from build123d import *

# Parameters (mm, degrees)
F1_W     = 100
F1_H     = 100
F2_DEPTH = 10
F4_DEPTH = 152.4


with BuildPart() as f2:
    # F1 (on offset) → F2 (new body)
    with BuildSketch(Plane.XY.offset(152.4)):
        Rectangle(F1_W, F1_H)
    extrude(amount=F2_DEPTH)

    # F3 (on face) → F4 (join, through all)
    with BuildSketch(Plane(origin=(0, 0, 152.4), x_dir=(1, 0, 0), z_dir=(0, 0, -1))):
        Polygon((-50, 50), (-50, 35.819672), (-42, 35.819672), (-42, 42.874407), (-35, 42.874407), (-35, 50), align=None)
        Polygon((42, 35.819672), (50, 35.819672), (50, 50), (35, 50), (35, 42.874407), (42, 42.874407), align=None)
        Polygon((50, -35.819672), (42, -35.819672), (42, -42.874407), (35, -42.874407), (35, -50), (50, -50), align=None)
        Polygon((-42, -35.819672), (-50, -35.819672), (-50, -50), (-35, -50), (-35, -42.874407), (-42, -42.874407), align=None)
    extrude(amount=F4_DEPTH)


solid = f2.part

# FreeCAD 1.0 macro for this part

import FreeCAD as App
import Part
import Sketcher


def add_polygon(sketch, points):
    """Adds a closed chain of lines whose ends are joined by coincident constraints."""
    first, n = sketch.GeometryCount, len(points)
    for a, b in zip(points, points[1:] + points[:1]):
        sketch.addGeometry(Part.LineSegment(App.Vector(*a, 0), App.Vector(*b, 0)), False)
    for i in range(n):
        sketch.addConstraint(Sketcher.Constraint("Coincident", first + i, 2, first + (i + 1) % n, 1))

doc = App.newDocument("Part")
body = doc.addObject("PartDesign::Body", "Body")

sketch1 = body.newObject("Sketcher::SketchObject", "Sketch")
sketch1.AttachmentSupport = (doc.getObject("XY_Plane"), [""])
sketch1.MapMode = "FlatFace"
sketch1.AttachmentOffset = App.Placement(App.Vector(0, 0, 152.4), App.Rotation())
add_polygon(sketch1, [(-50, 50), (-50, -50), (50, -50), (50, 50)])
sketch1.addConstraint(Sketcher.Constraint("Vertical", 0))
sketch1.addConstraint(Sketcher.Constraint("Horizontal", 1))
sketch1.addConstraint(Sketcher.Constraint("Vertical", 2))
sketch1.addConstraint(Sketcher.Constraint("Horizontal", 3))
sketch1.addConstraint(Sketcher.Constraint("Symmetric", 0, 2, 2, 2, -1, 1))
sketch1.addConstraint(Sketcher.Constraint("Equal", 3, 0))
sketch1.addConstraint(Sketcher.Constraint("DistanceX", 1, 1, 1, 2, 100.0))
pad1 = body.newObject("PartDesign::Pad", "Pad")
pad1.Profile = sketch1
pad1.Length = 10

sketch2 = body.newObject("Sketcher::SketchObject", "Sketch001")
sketch2.AttachmentSupport = (doc.getObject("XY_Plane"), [""])
sketch2.MapMode = "FlatFace"
sketch2.AttachmentOffset = App.Placement(App.Vector(0, 0, 152.4), App.Rotation())
add_polygon(sketch2, [(-50, -50), (-50, -36), (-42, -36), (-42, -43), (-35, -43), (-35, -50)])
add_polygon(sketch2, [(42, -36), (50, -36), (50, -50), (35, -50), (35, -43), (42, -43)])
add_polygon(sketch2, [(50, 36), (42, 36), (42, 43), (35, 43), (35, 50), (50, 50)])
add_polygon(sketch2, [(-42, 36), (-50, 36), (-50, 50), (-35, 50), (-35, 43), (-42, 43)])
sketch2.addConstraint(Sketcher.Constraint("Vertical", 0))
sketch2.addConstraint(Sketcher.Constraint("Horizontal", 1))
sketch2.addConstraint(Sketcher.Constraint("Vertical", 2))
sketch2.addConstraint(Sketcher.Constraint("Horizontal", 3))
sketch2.addConstraint(Sketcher.Constraint("Vertical", 4))
sketch2.addConstraint(Sketcher.Constraint("Horizontal", 5))
sketch2.addConstraint(Sketcher.Constraint("Horizontal", 6))
sketch2.addConstraint(Sketcher.Constraint("Vertical", 7))
sketch2.addConstraint(Sketcher.Constraint("Horizontal", 8))
sketch2.addConstraint(Sketcher.Constraint("Vertical", 9))
sketch2.addConstraint(Sketcher.Constraint("Horizontal", 10))
sketch2.addConstraint(Sketcher.Constraint("Vertical", 11))
sketch2.addConstraint(Sketcher.Constraint("Horizontal", 12))
sketch2.addConstraint(Sketcher.Constraint("Vertical", 13))
sketch2.addConstraint(Sketcher.Constraint("Horizontal", 14))
sketch2.addConstraint(Sketcher.Constraint("Vertical", 15))
sketch2.addConstraint(Sketcher.Constraint("Horizontal", 16))
sketch2.addConstraint(Sketcher.Constraint("Vertical", 17))
sketch2.addConstraint(Sketcher.Constraint("Horizontal", 18))
sketch2.addConstraint(Sketcher.Constraint("Vertical", 19))
sketch2.addConstraint(Sketcher.Constraint("Horizontal", 20))
sketch2.addConstraint(Sketcher.Constraint("Vertical", 21))
sketch2.addConstraint(Sketcher.Constraint("Horizontal", 22))
sketch2.addConstraint(Sketcher.Constraint("Vertical", 23))
sketch2.addConstraint(Sketcher.Constraint("Symmetric", 1, 2, 12, 2, -1, 1))
sketch2.addConstraint(Sketcher.Constraint("Symmetric", 3, 2, 14, 2, -1, 1))
sketch2.addConstraint(Sketcher.Constraint("Symmetric", 5, 2, 16, 2, -1, 1))
sketch2.addConstraint(Sketcher.Constraint("Symmetric", 6, 2, 18, 2, -1, 1))
sketch2.addConstraint(Sketcher.Constraint("Symmetric", 8, 2, 20, 2, -1, 1))
sketch2.addConstraint(Sketcher.Constraint("Symmetric", 10, 2, 22, 2, -1, 1))
sketch2.addConstraint(Sketcher.Constraint("Symmetric", 0, 2, 6, 2, -2))
sketch2.addConstraint(Sketcher.Constraint("Symmetric", 4, 2, 8, 2, -2))
sketch2.addConstraint(Sketcher.Constraint("Symmetric", 2, 2, 10, 2, -2))
sketch2.addConstraint(Sketcher.Constraint("DistanceX", 1, 1, 1, 2, 8.0))
sketch2.addConstraint(Sketcher.Constraint("DistanceX", 3, 1, 3, 2, 7.0))
sketch2.addConstraint(Sketcher.Constraint("DistanceX", 0, 2, -1, 1, 50.0))
sketch2.addConstraint(Sketcher.Constraint("DistanceY", 4, 2, -1, 1, 50.0))
sketch2.addConstraint(Sketcher.Constraint("DistanceY", 0, 1, 0, 2, 14.180328))
sketch2.addConstraint(Sketcher.Constraint("DistanceY", 2, 2, 2, 1, 7.054735))
pad2 = body.newObject("PartDesign::Pad", "Pad001")
pad2.Profile = sketch2
pad2.Length = 152.4
pad2.Reversed = True

doc.recompute()
